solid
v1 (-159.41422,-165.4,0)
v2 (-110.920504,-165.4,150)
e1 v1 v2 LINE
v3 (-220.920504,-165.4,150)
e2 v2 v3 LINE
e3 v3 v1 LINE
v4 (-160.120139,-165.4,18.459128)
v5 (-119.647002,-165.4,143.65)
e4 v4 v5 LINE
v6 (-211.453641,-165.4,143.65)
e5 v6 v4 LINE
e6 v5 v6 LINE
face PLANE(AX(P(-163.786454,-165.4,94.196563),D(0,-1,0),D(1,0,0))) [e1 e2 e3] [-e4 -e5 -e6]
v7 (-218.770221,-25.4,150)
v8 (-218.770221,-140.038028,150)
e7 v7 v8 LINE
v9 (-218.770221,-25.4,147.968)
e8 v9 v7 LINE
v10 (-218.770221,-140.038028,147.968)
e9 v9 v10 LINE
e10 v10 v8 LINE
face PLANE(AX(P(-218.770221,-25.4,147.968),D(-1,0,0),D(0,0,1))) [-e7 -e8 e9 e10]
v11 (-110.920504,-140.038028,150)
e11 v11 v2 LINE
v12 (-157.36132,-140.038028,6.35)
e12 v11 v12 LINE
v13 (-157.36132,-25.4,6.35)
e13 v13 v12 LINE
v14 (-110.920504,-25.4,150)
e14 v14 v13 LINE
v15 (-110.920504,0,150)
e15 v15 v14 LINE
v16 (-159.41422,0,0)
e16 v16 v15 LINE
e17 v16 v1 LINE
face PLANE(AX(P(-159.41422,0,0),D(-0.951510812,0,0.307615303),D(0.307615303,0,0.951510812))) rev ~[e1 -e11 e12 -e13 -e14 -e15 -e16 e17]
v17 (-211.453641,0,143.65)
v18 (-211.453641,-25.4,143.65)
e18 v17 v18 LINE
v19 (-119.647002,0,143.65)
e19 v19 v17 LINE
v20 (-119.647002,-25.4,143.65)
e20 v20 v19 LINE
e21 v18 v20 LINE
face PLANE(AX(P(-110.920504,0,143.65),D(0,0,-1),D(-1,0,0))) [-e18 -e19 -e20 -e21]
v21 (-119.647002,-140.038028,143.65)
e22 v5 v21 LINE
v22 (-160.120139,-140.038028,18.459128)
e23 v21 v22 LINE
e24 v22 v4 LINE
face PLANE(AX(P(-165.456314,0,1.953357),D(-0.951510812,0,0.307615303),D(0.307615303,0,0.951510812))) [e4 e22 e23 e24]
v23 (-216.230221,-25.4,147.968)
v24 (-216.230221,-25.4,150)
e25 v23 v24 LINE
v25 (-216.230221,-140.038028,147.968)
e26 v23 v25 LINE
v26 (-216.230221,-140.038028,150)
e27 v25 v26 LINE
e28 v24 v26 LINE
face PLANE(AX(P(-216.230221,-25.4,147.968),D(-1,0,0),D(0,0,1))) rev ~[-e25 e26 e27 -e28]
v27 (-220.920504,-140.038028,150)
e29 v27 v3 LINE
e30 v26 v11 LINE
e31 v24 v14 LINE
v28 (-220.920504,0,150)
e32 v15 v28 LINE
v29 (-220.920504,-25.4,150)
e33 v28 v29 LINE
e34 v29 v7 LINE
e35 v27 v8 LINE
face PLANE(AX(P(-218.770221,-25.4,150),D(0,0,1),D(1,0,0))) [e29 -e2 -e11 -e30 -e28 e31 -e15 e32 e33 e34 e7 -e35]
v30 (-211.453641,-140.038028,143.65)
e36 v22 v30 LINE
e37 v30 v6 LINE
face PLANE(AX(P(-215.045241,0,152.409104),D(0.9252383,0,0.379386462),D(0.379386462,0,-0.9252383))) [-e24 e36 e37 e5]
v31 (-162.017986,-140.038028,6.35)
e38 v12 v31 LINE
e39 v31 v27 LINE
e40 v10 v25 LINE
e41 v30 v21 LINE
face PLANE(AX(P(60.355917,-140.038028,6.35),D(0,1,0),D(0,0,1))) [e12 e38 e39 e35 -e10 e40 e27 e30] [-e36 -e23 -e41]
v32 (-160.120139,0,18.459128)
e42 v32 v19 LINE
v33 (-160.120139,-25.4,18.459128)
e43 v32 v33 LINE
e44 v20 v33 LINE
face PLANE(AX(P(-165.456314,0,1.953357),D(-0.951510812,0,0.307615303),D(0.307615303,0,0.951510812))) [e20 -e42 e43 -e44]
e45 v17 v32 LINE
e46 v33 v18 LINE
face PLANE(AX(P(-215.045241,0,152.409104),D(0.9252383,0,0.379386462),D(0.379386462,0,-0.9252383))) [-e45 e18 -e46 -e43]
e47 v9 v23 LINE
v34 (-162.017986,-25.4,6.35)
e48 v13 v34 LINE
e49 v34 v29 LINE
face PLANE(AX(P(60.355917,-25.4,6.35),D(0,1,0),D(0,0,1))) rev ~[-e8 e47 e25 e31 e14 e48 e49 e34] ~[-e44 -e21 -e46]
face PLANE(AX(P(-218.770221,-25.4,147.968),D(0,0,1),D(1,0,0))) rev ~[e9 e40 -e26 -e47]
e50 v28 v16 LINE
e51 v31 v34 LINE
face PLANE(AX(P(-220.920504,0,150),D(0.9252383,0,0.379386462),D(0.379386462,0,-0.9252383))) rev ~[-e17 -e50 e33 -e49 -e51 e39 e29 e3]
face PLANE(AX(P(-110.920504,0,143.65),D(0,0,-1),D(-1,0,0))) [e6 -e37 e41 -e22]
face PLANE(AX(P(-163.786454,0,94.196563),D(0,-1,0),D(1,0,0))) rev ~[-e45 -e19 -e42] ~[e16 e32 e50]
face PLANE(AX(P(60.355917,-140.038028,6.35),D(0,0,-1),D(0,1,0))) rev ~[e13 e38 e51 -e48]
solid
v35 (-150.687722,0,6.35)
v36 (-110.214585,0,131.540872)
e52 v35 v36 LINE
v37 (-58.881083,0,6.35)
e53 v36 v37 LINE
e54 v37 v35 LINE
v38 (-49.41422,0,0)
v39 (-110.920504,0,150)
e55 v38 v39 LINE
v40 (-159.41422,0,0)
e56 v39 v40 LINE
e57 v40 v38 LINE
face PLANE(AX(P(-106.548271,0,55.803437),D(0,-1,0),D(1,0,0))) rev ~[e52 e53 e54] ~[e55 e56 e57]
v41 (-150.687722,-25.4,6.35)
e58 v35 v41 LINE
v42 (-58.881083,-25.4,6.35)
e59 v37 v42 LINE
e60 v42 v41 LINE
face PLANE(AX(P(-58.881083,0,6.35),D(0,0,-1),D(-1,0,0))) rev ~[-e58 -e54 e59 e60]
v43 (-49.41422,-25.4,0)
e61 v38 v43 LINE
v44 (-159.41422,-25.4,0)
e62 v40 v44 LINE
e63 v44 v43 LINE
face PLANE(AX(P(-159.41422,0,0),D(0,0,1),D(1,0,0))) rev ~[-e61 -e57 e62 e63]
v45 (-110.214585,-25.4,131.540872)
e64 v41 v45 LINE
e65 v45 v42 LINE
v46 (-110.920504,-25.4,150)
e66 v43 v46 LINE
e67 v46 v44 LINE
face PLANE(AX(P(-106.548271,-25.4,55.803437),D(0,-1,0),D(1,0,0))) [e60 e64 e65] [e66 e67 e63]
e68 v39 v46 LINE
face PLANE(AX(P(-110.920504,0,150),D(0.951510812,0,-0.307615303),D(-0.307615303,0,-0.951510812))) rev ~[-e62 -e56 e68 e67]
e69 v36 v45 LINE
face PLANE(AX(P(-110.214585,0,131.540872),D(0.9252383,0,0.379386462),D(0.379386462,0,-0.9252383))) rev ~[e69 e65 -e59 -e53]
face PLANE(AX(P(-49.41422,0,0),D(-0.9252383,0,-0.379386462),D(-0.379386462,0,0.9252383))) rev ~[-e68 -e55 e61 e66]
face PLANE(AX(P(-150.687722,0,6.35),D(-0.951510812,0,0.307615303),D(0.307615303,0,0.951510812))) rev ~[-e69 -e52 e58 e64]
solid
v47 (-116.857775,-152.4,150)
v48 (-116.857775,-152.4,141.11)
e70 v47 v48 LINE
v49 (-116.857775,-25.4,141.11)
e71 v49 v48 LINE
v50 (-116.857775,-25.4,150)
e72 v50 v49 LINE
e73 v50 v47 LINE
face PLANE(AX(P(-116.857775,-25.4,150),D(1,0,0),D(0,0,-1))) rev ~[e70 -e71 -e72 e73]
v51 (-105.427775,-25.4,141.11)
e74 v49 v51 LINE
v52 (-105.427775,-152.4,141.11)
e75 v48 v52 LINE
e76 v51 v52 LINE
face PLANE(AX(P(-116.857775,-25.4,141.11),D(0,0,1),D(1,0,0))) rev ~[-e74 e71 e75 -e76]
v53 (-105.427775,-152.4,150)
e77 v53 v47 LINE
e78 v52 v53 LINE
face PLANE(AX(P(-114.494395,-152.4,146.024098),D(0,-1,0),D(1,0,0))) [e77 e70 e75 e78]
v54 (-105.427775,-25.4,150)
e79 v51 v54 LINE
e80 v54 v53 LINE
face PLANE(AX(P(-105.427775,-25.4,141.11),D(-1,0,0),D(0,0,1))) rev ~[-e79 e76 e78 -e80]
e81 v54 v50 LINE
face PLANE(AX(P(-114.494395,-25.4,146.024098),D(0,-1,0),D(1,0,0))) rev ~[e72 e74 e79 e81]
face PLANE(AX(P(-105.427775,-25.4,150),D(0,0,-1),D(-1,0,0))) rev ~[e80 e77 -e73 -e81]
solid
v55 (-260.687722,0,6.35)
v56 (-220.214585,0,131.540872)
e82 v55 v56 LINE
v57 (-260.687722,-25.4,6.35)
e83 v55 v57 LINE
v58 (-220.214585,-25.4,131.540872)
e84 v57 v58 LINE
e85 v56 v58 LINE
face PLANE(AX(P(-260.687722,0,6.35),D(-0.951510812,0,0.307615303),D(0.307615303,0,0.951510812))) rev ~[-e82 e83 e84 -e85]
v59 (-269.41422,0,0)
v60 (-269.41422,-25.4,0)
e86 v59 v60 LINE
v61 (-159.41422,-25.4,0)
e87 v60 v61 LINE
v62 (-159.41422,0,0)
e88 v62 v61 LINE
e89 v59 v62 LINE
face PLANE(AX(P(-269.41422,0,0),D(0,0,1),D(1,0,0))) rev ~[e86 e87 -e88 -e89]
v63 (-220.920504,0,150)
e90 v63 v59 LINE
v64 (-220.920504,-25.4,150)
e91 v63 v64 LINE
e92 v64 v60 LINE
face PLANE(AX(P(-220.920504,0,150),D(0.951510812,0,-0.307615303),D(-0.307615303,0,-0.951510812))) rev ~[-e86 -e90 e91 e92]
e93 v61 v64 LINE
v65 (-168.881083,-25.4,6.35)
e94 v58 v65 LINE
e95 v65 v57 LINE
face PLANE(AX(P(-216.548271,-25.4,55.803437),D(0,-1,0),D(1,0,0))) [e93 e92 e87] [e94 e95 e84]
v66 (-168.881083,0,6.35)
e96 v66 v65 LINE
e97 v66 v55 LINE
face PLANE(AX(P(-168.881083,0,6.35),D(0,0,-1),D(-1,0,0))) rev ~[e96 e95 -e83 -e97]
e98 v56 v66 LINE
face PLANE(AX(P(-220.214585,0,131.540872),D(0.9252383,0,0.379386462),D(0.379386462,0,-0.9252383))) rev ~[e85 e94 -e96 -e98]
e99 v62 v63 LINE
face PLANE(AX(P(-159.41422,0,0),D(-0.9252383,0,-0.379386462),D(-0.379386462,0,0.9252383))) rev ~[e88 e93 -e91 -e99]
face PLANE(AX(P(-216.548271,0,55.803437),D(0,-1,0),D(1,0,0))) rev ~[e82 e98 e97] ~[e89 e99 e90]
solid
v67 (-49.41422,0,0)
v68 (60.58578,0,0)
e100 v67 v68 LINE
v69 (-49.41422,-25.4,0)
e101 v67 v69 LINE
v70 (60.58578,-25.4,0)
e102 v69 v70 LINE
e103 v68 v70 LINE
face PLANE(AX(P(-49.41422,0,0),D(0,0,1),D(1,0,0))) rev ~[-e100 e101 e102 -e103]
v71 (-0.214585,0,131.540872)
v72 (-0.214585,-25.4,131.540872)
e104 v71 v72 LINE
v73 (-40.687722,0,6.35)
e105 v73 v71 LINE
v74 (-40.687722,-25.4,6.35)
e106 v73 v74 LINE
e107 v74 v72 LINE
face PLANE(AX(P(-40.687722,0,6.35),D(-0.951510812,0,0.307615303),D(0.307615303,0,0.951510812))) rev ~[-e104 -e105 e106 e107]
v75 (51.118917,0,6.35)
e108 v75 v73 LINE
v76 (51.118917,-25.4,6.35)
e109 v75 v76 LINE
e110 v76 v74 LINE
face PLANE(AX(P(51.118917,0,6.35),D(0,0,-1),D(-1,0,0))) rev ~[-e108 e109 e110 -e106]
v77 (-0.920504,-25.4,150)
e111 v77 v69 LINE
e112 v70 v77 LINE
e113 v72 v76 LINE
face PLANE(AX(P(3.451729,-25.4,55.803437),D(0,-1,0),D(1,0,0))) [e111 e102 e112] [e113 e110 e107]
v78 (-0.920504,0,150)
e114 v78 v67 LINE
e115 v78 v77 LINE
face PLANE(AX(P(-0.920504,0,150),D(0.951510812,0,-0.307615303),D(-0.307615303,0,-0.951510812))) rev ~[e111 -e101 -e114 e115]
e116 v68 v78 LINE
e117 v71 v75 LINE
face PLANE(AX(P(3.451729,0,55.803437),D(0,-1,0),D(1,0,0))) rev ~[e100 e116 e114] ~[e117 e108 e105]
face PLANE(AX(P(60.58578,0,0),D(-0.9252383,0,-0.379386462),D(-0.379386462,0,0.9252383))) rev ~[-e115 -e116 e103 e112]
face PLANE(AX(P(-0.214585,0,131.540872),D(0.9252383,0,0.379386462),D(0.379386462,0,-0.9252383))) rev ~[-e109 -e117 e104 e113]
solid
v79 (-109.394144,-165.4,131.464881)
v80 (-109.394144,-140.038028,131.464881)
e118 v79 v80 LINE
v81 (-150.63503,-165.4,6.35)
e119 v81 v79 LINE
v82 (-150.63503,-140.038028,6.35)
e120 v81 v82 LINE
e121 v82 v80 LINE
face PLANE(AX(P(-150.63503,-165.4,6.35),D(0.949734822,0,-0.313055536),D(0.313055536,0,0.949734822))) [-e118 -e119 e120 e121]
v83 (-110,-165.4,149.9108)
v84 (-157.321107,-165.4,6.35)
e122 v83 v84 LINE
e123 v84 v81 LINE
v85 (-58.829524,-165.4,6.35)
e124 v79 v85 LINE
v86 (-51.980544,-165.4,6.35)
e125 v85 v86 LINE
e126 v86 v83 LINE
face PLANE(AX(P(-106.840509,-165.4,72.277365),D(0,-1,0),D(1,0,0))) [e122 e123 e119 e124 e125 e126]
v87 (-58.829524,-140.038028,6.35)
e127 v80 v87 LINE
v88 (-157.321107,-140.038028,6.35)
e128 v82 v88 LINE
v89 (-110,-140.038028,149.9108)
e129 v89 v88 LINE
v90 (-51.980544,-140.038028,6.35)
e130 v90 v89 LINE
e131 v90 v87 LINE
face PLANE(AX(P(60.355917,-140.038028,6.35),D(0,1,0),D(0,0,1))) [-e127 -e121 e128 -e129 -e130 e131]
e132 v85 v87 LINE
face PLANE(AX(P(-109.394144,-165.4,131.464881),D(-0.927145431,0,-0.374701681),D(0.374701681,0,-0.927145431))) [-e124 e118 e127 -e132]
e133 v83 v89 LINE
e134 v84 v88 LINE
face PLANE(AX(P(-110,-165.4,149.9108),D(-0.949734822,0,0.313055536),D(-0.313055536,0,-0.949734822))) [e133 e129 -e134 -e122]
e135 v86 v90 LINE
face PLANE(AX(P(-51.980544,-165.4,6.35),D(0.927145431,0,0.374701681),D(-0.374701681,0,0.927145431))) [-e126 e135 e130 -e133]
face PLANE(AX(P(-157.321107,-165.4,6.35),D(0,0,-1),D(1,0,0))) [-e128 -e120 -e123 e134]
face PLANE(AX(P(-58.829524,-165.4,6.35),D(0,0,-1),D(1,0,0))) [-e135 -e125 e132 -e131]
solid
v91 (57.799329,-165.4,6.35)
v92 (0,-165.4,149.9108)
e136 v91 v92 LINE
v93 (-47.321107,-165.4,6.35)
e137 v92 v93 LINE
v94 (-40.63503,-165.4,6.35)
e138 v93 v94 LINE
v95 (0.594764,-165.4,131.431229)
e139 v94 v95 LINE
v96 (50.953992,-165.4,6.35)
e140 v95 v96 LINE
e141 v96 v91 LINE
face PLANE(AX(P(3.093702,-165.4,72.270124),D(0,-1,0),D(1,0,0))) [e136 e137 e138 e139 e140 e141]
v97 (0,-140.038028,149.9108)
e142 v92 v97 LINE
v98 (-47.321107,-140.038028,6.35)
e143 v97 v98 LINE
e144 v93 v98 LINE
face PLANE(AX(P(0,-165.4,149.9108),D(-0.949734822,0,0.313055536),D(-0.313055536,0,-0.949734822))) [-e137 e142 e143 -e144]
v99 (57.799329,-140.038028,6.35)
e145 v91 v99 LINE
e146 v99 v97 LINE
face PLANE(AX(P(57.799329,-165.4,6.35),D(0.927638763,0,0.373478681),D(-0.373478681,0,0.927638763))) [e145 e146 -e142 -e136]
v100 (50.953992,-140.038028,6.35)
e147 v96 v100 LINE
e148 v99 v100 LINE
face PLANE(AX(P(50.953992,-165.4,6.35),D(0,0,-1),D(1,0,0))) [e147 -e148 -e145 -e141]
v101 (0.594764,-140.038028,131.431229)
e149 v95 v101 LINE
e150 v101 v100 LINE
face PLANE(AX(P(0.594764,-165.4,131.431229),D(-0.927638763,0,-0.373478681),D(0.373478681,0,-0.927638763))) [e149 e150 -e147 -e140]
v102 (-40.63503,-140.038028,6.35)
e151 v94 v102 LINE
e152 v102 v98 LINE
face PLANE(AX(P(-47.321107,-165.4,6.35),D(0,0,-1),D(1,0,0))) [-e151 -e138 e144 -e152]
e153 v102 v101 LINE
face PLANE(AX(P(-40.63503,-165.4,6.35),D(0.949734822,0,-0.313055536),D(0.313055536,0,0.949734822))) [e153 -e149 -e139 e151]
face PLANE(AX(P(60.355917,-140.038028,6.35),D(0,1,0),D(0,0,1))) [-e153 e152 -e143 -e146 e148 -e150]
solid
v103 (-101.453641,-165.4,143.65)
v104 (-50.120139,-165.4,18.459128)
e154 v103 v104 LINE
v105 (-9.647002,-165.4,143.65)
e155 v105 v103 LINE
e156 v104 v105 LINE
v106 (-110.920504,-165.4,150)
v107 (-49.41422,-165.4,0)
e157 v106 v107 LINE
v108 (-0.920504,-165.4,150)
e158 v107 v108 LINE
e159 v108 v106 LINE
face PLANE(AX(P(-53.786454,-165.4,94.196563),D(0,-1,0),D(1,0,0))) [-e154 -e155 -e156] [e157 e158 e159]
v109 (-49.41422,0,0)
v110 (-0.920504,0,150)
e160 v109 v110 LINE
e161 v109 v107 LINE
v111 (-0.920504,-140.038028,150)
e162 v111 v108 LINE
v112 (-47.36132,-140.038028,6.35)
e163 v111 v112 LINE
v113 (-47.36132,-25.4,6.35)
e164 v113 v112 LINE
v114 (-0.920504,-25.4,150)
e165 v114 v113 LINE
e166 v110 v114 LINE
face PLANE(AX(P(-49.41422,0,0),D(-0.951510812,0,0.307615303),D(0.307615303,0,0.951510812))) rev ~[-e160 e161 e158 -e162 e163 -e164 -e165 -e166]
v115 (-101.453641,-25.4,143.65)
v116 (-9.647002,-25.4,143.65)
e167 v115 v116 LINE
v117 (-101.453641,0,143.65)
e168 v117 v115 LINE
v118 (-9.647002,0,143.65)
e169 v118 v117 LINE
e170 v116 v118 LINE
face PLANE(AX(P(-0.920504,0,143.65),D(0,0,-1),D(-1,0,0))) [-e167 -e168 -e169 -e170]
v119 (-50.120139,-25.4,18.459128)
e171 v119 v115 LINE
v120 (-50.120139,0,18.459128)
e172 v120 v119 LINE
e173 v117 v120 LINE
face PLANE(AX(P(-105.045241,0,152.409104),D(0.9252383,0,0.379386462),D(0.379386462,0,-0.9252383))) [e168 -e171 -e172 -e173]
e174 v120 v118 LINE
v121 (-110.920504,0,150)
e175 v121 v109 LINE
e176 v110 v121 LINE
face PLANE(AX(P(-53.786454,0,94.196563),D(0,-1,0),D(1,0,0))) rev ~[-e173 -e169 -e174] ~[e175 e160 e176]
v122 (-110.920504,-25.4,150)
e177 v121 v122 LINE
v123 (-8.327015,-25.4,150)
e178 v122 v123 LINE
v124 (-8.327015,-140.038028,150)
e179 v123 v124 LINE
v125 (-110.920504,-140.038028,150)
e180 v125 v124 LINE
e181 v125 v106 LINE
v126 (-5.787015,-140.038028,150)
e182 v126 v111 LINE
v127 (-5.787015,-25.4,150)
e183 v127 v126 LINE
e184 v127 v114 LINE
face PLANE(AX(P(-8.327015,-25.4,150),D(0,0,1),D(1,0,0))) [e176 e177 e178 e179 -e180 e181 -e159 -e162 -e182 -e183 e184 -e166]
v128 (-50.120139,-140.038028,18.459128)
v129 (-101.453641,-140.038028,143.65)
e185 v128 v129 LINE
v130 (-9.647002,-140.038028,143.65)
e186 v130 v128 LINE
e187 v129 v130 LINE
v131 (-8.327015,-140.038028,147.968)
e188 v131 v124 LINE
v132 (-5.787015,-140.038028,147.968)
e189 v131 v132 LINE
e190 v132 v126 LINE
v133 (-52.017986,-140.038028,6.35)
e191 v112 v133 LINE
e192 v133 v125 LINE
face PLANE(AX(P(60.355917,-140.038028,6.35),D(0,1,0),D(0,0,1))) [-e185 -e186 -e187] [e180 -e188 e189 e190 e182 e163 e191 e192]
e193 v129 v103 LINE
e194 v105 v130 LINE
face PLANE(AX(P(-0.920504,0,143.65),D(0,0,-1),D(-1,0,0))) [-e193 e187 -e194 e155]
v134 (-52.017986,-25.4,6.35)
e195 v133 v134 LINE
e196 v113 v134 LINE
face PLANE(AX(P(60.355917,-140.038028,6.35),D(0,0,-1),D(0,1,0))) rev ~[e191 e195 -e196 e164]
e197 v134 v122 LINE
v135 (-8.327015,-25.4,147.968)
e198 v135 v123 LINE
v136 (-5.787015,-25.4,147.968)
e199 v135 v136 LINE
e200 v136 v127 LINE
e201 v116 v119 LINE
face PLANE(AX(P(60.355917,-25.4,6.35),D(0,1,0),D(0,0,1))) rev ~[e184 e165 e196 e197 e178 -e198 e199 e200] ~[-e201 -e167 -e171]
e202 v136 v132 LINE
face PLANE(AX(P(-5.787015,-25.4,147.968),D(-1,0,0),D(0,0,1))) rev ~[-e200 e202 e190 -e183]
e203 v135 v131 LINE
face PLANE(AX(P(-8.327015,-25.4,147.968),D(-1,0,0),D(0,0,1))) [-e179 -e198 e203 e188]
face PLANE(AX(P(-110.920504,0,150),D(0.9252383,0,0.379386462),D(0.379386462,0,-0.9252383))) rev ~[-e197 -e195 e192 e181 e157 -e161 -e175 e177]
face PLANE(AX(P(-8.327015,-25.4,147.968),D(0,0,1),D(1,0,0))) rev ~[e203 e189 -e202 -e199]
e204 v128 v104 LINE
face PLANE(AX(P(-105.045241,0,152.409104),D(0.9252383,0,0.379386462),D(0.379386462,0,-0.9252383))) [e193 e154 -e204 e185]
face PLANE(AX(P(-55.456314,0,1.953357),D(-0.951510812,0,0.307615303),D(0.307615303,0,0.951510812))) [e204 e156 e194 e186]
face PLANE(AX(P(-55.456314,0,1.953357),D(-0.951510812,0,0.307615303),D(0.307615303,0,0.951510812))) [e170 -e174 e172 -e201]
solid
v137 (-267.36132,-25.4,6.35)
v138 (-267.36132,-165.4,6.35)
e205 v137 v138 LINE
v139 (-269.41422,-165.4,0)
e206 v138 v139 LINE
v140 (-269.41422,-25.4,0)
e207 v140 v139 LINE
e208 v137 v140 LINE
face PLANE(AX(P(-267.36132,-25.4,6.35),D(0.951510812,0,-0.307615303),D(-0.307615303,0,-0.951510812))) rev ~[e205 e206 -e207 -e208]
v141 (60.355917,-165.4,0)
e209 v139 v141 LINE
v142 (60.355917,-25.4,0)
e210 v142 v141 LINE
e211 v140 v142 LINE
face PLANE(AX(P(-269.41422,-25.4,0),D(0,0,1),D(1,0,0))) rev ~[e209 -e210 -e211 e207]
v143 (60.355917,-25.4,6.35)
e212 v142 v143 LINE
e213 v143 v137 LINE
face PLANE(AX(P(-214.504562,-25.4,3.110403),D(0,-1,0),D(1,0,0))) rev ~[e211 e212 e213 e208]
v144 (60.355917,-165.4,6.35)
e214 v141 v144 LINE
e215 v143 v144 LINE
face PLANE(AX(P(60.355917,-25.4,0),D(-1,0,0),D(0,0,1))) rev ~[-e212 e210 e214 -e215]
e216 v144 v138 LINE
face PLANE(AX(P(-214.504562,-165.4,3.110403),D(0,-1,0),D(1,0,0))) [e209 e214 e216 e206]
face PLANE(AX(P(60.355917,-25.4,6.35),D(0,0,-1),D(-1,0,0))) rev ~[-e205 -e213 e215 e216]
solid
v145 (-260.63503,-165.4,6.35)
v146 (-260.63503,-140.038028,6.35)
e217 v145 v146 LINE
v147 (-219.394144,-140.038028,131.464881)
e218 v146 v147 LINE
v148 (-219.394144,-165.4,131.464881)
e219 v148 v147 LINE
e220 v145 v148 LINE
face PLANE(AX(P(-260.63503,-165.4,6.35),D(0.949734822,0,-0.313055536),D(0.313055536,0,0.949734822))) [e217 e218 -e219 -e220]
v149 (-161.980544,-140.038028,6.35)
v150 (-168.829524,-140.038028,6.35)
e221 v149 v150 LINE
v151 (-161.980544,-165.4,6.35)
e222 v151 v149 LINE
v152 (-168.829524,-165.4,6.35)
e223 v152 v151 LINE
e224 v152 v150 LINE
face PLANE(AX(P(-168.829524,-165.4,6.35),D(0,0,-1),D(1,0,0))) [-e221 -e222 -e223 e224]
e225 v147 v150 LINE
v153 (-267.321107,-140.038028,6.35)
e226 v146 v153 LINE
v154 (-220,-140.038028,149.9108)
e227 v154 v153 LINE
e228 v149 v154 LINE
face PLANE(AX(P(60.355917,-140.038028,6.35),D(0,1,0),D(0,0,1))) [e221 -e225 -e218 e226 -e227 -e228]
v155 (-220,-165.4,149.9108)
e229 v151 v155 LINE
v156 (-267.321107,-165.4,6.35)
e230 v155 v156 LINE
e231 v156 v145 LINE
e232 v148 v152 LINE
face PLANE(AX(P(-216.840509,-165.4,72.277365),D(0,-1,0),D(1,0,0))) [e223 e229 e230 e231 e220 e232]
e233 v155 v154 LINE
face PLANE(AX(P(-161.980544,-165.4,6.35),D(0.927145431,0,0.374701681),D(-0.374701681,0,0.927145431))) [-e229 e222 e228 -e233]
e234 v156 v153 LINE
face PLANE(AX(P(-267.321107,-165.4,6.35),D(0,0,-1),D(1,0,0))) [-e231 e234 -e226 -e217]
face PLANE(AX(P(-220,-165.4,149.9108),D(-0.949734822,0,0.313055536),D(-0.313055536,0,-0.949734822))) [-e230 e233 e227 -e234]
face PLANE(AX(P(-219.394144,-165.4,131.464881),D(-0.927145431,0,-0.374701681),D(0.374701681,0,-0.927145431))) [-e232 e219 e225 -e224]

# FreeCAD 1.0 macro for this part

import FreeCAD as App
import Part
import Sketcher
Q = App.Units.Quantity


def faces_at(feature, points):
    """Names of the faces that lie closest to the given points."""
    faces = feature.Shape.Faces
    near = lambda p: min(range(len(faces)), key=lambda i: faces[i].distToShape(Part.Vertex(*p))[0])
    return sorted({f"Face{near(p) + 1}" for p in points})

doc = App.newDocument("Part")
params = doc.addObject("Spreadsheet::Sheet", "Params")
for row, (alias, value) in enumerate([
    ("pad1_length", "1 in"),
    ("pad2_length", "1 in"),
    ("pad3_length", "1 in"),
    ("sketch4_height", "0.25 in"),
    ("pad4_length", "140 mm"),
    ("pad5_length", "1 in"),
    ("pad6_length", "1 in"),
    ("pad7_length", "1 in"),
    ("pad8_length", "165.4 mm"),
    ("thickness_wall", "0.25 in"),
    ("pad9_length", "165.4 mm"),
    ("thickness2_wall", "0.25 in"),
    ("pad10_length", "333 mm"),
    ("sketch11_width", "0.1 in"),
    ("sketch11_height", "0.08 in"),
    ("pad11_length", "5 in"),
    ("sketch12_width", "0.1 in"),
    ("sketch12_height", "0.08 in"),
    ("pad12_length", "5 in"),
    ("sketch13_width", "0.45 in"),
    ("sketch13_height", "0.35 in"),
    ("pad13_length", "5 in"),
], start=1):
    params.set(f"A{row}", alias)
    params.set(f"B{row}", "=" + value)
    params.setAlias(f"B{row}", alias)

body = doc.addObject("PartDesign::Body", "Body")

sketch1 = body.newObject("Sketcher::SketchObject", "Sketch")
sketch1.AttachmentSupport = (doc.getObject("XZ_Plane"), [""])
sketch1.MapMode = "FlatFace"
sketch1.addGeometry([
    Part.LineSegment(App.Vector(-221, 150, 0), App.Vector(-269, 0, 0)),
    Part.LineSegment(App.Vector(-269, 0, 0), App.Vector(-159, 0, 0)),
    Part.LineSegment(App.Vector(-159, 0, 0), App.Vector(-221, 150, 0)),
    Part.LineSegment(App.Vector(-169, 6, 0), App.Vector(-261, 6, 0)),
    Part.LineSegment(App.Vector(-261, 6, 0), App.Vector(-220, 132, 0)),
    Part.LineSegment(App.Vector(-220, 132, 0), App.Vector(-169, 6, 0)),
], False)
sketch1.addConstraint([
    Sketcher.Constraint("Coincident", 0, 2, 1, 1),
    Sketcher.Constraint("Coincident", 1, 2, 2, 1),
    Sketcher.Constraint("Coincident", 2, 2, 0, 1),
    Sketcher.Constraint("Coincident", 3, 2, 4, 1),
    Sketcher.Constraint("Coincident", 4, 2, 5, 1),
    Sketcher.Constraint("Coincident", 5, 2, 3, 1),
    Sketcher.Constraint("Horizontal", 1),
    Sketcher.Constraint("Horizontal", 3),
    Sketcher.Constraint("PointOnObject", 0, 2, -1),
    Sketcher.Constraint("Parallel", 0, 4),
    Sketcher.Constraint("Parallel", 2, 5),
    Sketcher.Constraint("DistanceY", -1, 1, 3, 2, Q("0.25 in")),
    Sketcher.Constraint("DistanceX", 1, 1, 1, 2, 110.0),
    Sketcher.Constraint("DistanceX", 3, 2, 3, 1, 91.806639),
    Sketcher.Constraint("DistanceY", -1, 1, 2, 2, 150.0),
    Sketcher.Constraint("DistanceX", 4, 2, 5, 2, 51.333502),
    Sketcher.Constraint("DistanceX", 0, 2, -1, 1, 269.41422),
    Sketcher.Constraint("DistanceX", 3, 2, 2, 2, 39.767218),
])
pad1 = body.newObject("PartDesign::Pad", "Pad")
pad1.Profile = sketch1
pad1.setExpression("Length", "Params.pad1_length")
body2 = doc.addObject("PartDesign::Body", "Body001")

sketch2 = body2.newObject("Sketcher::SketchObject", "Sketch001")
sketch2.AttachmentSupport = (doc.getObject("XZ_Plane001"), [""])
sketch2.MapMode = "FlatFace"
sketch2.addGeometry([
    Part.LineSegment(App.Vector(-111, 150, 0), App.Vector(-159, 0, 0)),
    Part.LineSegment(App.Vector(-159, 0, 0), App.Vector(-49, 0, 0)),
    Part.LineSegment(App.Vector(-49, 0, 0), App.Vector(-111, 150, 0)),
    Part.LineSegment(App.Vector(-110, 132, 0), App.Vector(-59, 6, 0)),
    Part.LineSegment(App.Vector(-59, 6, 0), App.Vector(-151, 6, 0)),
    Part.LineSegment(App.Vector(-151, 6, 0), App.Vector(-110, 132, 0)),
], False)
sketch2.addConstraint([
    Sketcher.Constraint("Coincident", 0, 2, 1, 1),
    Sketcher.Constraint("Coincident", 1, 2, 2, 1),
    Sketcher.Constraint("Coincident", 2, 2, 0, 1),
    Sketcher.Constraint("Coincident", 3, 2, 4, 1),
    Sketcher.Constraint("Coincident", 4, 2, 5, 1),
    Sketcher.Constraint("Coincident", 5, 2, 3, 1),
    Sketcher.Constraint("Horizontal", 1),
    Sketcher.Constraint("Horizontal", 4),
    Sketcher.Constraint("PointOnObject", 0, 2, -1),
    Sketcher.Constraint("Parallel", 2, 3),
    Sketcher.Constraint("Parallel", 0, 5),
    Sketcher.Constraint("DistanceY", -1, 1, 3, 2, Q("0.25 in")),
    Sketcher.Constraint("DistanceX", 1, 1, 1, 2, 110.0),
    Sketcher.Constraint("DistanceX", 4, 2, 4, 1, 91.806639),
    Sketcher.Constraint("DistanceY", -1, 1, 2, 2, 150.0),
    Sketcher.Constraint("DistanceX", 5, 2, 3, 2, 51.333502),
    Sketcher.Constraint("DistanceX", 0, 2, -1, 1, 159.41422),
    Sketcher.Constraint("DistanceX", 2, 2, 3, 2, 52.039421),
])
pad2 = body2.newObject("PartDesign::Pad", "Pad001")
pad2.Profile = sketch2
pad2.setExpression("Length", "Params.pad2_length")
body3 = doc.addObject("PartDesign::Body", "Body002")

sketch3 = body3.newObject("Sketcher::SketchObject", "Sketch002")
sketch3.AttachmentSupport = (doc.getObject("XZ_Plane002"), [""])
sketch3.MapMode = "FlatFace"
sketch3.addGeometry([
    Part.LineSegment(App.Vector(-1, 150, 0), App.Vector(-49, 0, 0)),
    Part.LineSegment(App.Vector(-49, 0, 0), App.Vector(61, 0, 0)),
    Part.LineSegment(App.Vector(61, 0, 0), App.Vector(-1, 150, 0)),
    Part.LineSegment(App.Vector(51, 6, 0), App.Vector(-41, 6, 0)),
    Part.LineSegment(App.Vector(-41, 6, 0), App.Vector(0, 132, 0)),
    Part.LineSegment(App.Vector(0, 132, 0), App.Vector(51, 6, 0)),
], False)
sketch3.addConstraint([
    Sketcher.Constraint("Coincident", 0, 2, 1, 1),
    Sketcher.Constraint("Coincident", 1, 2, 2, 1),
    Sketcher.Constraint("Coincident", 2, 2, 0, 1),
    Sketcher.Constraint("Coincident", 3, 2, 4, 1),
    Sketcher.Constraint("Coincident", 4, 2, 5, 1),
    Sketcher.Constraint("Coincident", 5, 2, 3, 1),
    Sketcher.Constraint("Horizontal", 1),
    Sketcher.Constraint("Horizontal", 3),
    Sketcher.Constraint("PointOnObject", 0, 2, -1),
    Sketcher.Constraint("Parallel", 0, 4),
    Sketcher.Constraint("Parallel", 2, 5),
    Sketcher.Constraint("DistanceY", -1, 1, 3, 2, Q("0.25 in")),
    Sketcher.Constraint("DistanceX", 1, 1, 1, 2, 110.0),
    Sketcher.Constraint("DistanceX", 3, 2, 3, 1, 91.806639),
    Sketcher.Constraint("DistanceY", -1, 1, 2, 2, 150.0),
    Sketcher.Constraint("DistanceX", 4, 2, 5, 2, 51.333502),
    Sketcher.Constraint("DistanceX", 0, 2, -1, 1, 49.41422),
    Sketcher.Constraint("DistanceX", 3, 2, 2, 2, 39.767218),
])
pad3 = body3.newObject("PartDesign::Pad", "Pad002")
pad3.Profile = sketch3
pad3.setExpression("Length", "Params.pad3_length")
body4 = doc.addObject("PartDesign::Body", "Body003")

sketch4 = body4.newObject("Sketcher::SketchObject", "Sketch003")
sketch4.AttachmentSupport = (doc.getObject("XZ_Plane003"), [""])
sketch4.MapMode = "FlatFace"
sketch4.AttachmentOffset = App.Placement(App.Vector(0, 0, 1 * 25.4), App.Rotation())
sketch4.addGeometry([
    Part.LineSegment(App.Vector(-267, 6, 0), App.Vector(-269, 0, 0)),
    Part.LineSegment(App.Vector(-269, 0, 0), App.Vector(60, 0, 0)),
    Part.LineSegment(App.Vector(60, 0, 0), App.Vector(60, 6, 0)),
    Part.LineSegment(App.Vector(60, 6, 0), App.Vector(-267, 6, 0)),
], False)
sketch4.addConstraint([
    Sketcher.Constraint("Coincident", 0, 2, 1, 1),
    Sketcher.Constraint("Coincident", 1, 2, 2, 1),
    Sketcher.Constraint("Coincident", 2, 2, 3, 1),
    Sketcher.Constraint("Coincident", 3, 2, 0, 1),
    Sketcher.Constraint("Horizontal", 1),
    Sketcher.Constraint("Vertical", 2),
    Sketcher.Constraint("Horizontal", 3),
    Sketcher.Constraint("PointOnObject", 0, 2, -1),
    Sketcher.Constraint("DistanceY", 2, 1, 2, 2, Q("0.25 in")),
    Sketcher.Constraint("DistanceX", 0, 2, 3, 2, 2.052901),
    Sketcher.Constraint("DistanceX", 1, 1, 1, 2, 329.770137),
    Sketcher.Constraint("DistanceX", 0, 2, -1, 1, 269.41422),
])
sketch4.setExpression("Constraints[8]", "Params.sketch4_height")
pad4 = body4.newObject("PartDesign::Pad", "Pad003")
pad4.Profile = sketch4
pad4.setExpression("Length", "Params.pad4_length")
body5 = doc.addObject("PartDesign::Body", "Body004")

sketch5 = body5.newObject("Sketcher::SketchObject", "Sketch004")
sketch5.AttachmentSupport = (doc.getObject("XZ_Plane004"), [""])
sketch5.MapMode = "FlatFace"
sketch5.AttachmentOffset = App.Placement(App.Vector(0, 0, 165.4), App.Rotation())
sketch5.addGeometry([
    Part.LineSegment(App.Vector(-220, 150, 0), App.Vector(-267, 6, 0)),
    Part.LineSegment(App.Vector(-267, 6, 0), App.Vector(-261, 6, 0)),
    Part.LineSegment(App.Vector(-261, 6, 0), App.Vector(-219, 131, 0)),
    Part.LineSegment(App.Vector(-219, 131, 0), App.Vector(-169, 6, 0)),
    Part.LineSegment(App.Vector(-169, 6, 0), App.Vector(-162, 6, 0)),
    Part.LineSegment(App.Vector(-162, 6, 0), App.Vector(-220, 150, 0)),
], False)
sketch5.addConstraint([
    Sketcher.Constraint("Coincident", 0, 2, 1, 1),
    Sketcher.Constraint("Coincident", 1, 2, 2, 1),
    Sketcher.Constraint("Coincident", 2, 2, 3, 1),
    Sketcher.Constraint("Coincident", 3, 2, 4, 1),
    Sketcher.Constraint("Coincident", 4, 2, 5, 1),
    Sketcher.Constraint("Coincident", 5, 2, 0, 1),
    Sketcher.Constraint("Horizontal", 1),
    Sketcher.Constraint("Horizontal", 4),
    Sketcher.Constraint("Parallel", 0, 2),
    Sketcher.Constraint("Parallel", 3, 5),
    Sketcher.Constraint("Horizontal", 1, 2, 3, 2),
    Sketcher.Constraint("DistanceY", -1, 1, 0, 2, Q("0.25 in")),
    Sketcher.Constraint("DistanceY", -1, 1, 5, 2, Q("5.902 in")),
    Sketcher.Constraint("DistanceX", 4, 1, 4, 2, 6.848979),
    Sketcher.Constraint("DistanceX", 5, 2, -1, 1, 220.0),
    Sketcher.Constraint("DistanceX", 2, 2, 4, 2, 57.413599),
    Sketcher.Constraint("Distance", 3, 134.946338),
    Sketcher.Constraint("DistanceX", 1, 1, 1, 2, 6.686077),
])
pad5 = body5.newObject("PartDesign::Pad", "Pad004")
pad5.Profile = sketch5
pad5.setExpression("Length", "Params.pad5_length")
pad5.Reversed = True
body6 = doc.addObject("PartDesign::Body", "Body005")

sketch6 = body6.newObject("Sketcher::SketchObject", "Sketch005")
sketch6.AttachmentSupport = (doc.getObject("XZ_Plane005"), [""])
sketch6.MapMode = "FlatFace"
sketch6.AttachmentOffset = App.Placement(App.Vector(0, 0, 165.4), App.Rotation())
sketch6.addGeometry([
    Part.LineSegment(App.Vector(-110, 150, 0), App.Vector(-157, 6, 0)),
    Part.LineSegment(App.Vector(-157, 6, 0), App.Vector(-151, 6, 0)),
    Part.LineSegment(App.Vector(-151, 6, 0), App.Vector(-109, 131, 0)),
    Part.LineSegment(App.Vector(-109, 131, 0), App.Vector(-59, 6, 0)),
    Part.LineSegment(App.Vector(-59, 6, 0), App.Vector(-52, 6, 0)),
    Part.LineSegment(App.Vector(-52, 6, 0), App.Vector(-110, 150, 0)),
], False)
sketch6.addConstraint([
    Sketcher.Constraint("Coincident", 0, 2, 1, 1),
    Sketcher.Constraint("Coincident", 1, 2, 2, 1),
    Sketcher.Constraint("Coincident", 2, 2, 3, 1),
    Sketcher.Constraint("Coincident", 3, 2, 4, 1),
    Sketcher.Constraint("Coincident", 4, 2, 5, 1),
    Sketcher.Constraint("Coincident", 5, 2, 0, 1),
    Sketcher.Constraint("Horizontal", 1),
    Sketcher.Constraint("Horizontal", 4),
    Sketcher.Constraint("Parallel", 0, 2),
    Sketcher.Constraint("Parallel", 3, 5),
    Sketcher.Constraint("Horizontal", 1, 2, 3, 2),
    Sketcher.Constraint("DistanceY", -1, 1, 0, 2, Q("0.25 in")),
    Sketcher.Constraint("DistanceY", -1, 1, 5, 2, Q("5.902 in")),
    Sketcher.Constraint("DistanceX", 4, 1, 4, 2, 6.848979),
    Sketcher.Constraint("DistanceX", 5, 2, -1, 1, 110.0),
    Sketcher.Constraint("DistanceX", 2, 2, 4, 2, 57.413599),
    Sketcher.Constraint("Distance", 3, 134.946338),
    Sketcher.Constraint("DistanceX", 1, 1, 1, 2, 6.686077),
])
pad6 = body6.newObject("PartDesign::Pad", "Pad005")
pad6.Profile = sketch6
pad6.setExpression("Length", "Params.pad6_length")
pad6.Reversed = True
body7 = doc.addObject("PartDesign::Body", "Body006")

sketch7 = body7.newObject("Sketcher::SketchObject", "Sketch006")
sketch7.AttachmentSupport = (doc.getObject("XZ_Plane006"), [""])
sketch7.MapMode = "FlatFace"
sketch7.AttachmentOffset = App.Placement(App.Vector(0, 0, 165.4), App.Rotation())
sketch7.addGeometry([
    Part.LineSegment(App.Vector(0, 150, 0), App.Vector(-47, 6, 0)),
    Part.LineSegment(App.Vector(-47, 6, 0), App.Vector(-41, 6, 0)),
    Part.LineSegment(App.Vector(-41, 6, 0), App.Vector(1, 131, 0)),
    Part.LineSegment(App.Vector(1, 131, 0), App.Vector(51, 6, 0)),
    Part.LineSegment(App.Vector(51, 6, 0), App.Vector(58, 6, 0)),
    Part.LineSegment(App.Vector(58, 6, 0), App.Vector(0, 150, 0)),
], False)
sketch7.addConstraint([
    Sketcher.Constraint("Coincident", 0, 2, 1, 1),
    Sketcher.Constraint("Coincident", 1, 2, 2, 1),
    Sketcher.Constraint("Coincident", 2, 2, 3, 1),
    Sketcher.Constraint("Coincident", 3, 2, 4, 1),
    Sketcher.Constraint("Coincident", 4, 2, 5, 1),
    Sketcher.Constraint("Coincident", 5, 2, 0, 1),
    Sketcher.Constraint("Horizontal", 1),
    Sketcher.Constraint("Horizontal", 4),
    Sketcher.Constraint("PointOnObject", 5, 2, -2),
    Sketcher.Constraint("Parallel", 0, 2),
    Sketcher.Constraint("Parallel", 3, 5),
    Sketcher.Constraint("Horizontal", 1, 2, 3, 2),
    Sketcher.Constraint("DistanceY", -1, 1, 0, 2, Q("0.25 in")),
    Sketcher.Constraint("DistanceY", -1, 1, 5, 2, Q("5.902 in")),
    Sketcher.Constraint("DistanceX", 0, 2, 4, 2, Q("4.1385998 in")),
    Sketcher.Constraint("DistanceX", 0, 2, 3, 2, 98.275099),
    Sketcher.Constraint("Distance", 5, 154.75938),
    Sketcher.Constraint("DistanceX", 1, 1, 1, 2, 6.686077),
])
pad7 = body7.newObject("PartDesign::Pad", "Pad006")
pad7.Profile = sketch7
pad7.setExpression("Length", "Params.pad7_length")
pad7.Reversed = True
body8 = doc.addObject("PartDesign::Body", "Body007")

sketch8 = body8.newObject("Sketcher::SketchObject", "Sketch007")
sketch8.AttachmentSupport = (doc.getObject("XZ_Plane007"), [""])
sketch8.MapMode = "FlatFace"
sketch8.addGeometry([
    Part.LineSegment(App.Vector(-111, 150, 0), App.Vector(-221, 150, 0)),
    Part.LineSegment(App.Vector(-221, 150, 0), App.Vector(-159, 0, 0)),
    Part.LineSegment(App.Vector(-159, 0, 0), App.Vector(-111, 150, 0)),
], False)
sketch8.addConstraint([
    Sketcher.Constraint("Coincident", 0, 2, 1, 1),
    Sketcher.Constraint("Coincident", 1, 2, 2, 1),
    Sketcher.Constraint("Coincident", 2, 2, 0, 1),
    Sketcher.Constraint("Horizontal", 0),
    Sketcher.Constraint("PointOnObject", 1, 2, -1),
    Sketcher.Constraint("DistanceX", 0, 2, 0, 1, 110.0),
    Sketcher.Constraint("DistanceY", -1, 1, 0, 2, 150.0),
    Sketcher.Constraint("Distance", 2, 157.644031),
    Sketcher.Constraint("DistanceX", 1, 2, -1, 1, 159.41422),
])
pad8 = body8.newObject("PartDesign::Pad", "Pad007")
pad8.Profile = sketch8
pad8.setExpression("Length", "Params.pad8_length")
doc.recompute()

thickness = body8.newObject("PartDesign::Thickness", "Thickness")
thickness.Base = (pad8, faces_at(pad8, [(-165.921, -165.4, 75), (-165.921, 0, 75)]))
thickness.setExpression("Value", "Params.thickness_wall")
thickness.Reversed = True
thickness.Join = "Arc"
body9 = doc.addObject("PartDesign::Body", "Body008")

sketch9 = body9.newObject("Sketcher::SketchObject", "Sketch008")
sketch9.AttachmentSupport = (doc.getObject("XZ_Plane008"), [""])
sketch9.MapMode = "FlatFace"
sketch9.addGeometry([
    Part.LineSegment(App.Vector(-1, 150, 0), App.Vector(-111, 150, 0)),
    Part.LineSegment(App.Vector(-111, 150, 0), App.Vector(-49, 0, 0)),
    Part.LineSegment(App.Vector(-49, 0, 0), App.Vector(-1, 150, 0)),
], False)
sketch9.addConstraint([
    Sketcher.Constraint("Coincident", 0, 2, 1, 1),
    Sketcher.Constraint("Coincident", 1, 2, 2, 1),
    Sketcher.Constraint("Coincident", 2, 2, 0, 1),
    Sketcher.Constraint("Horizontal", 0),
    Sketcher.Constraint("PointOnObject", 1, 2, -1),
    Sketcher.Constraint("DistanceX", 0, 2, 0, 1, 110.0),
    Sketcher.Constraint("DistanceY", -1, 1, 0, 2, 150.0),
    Sketcher.Constraint("Distance", 2, 157.644031),
    Sketcher.Constraint("DistanceX", 1, 2, -1, 1, 49.41422),
])
pad9 = body9.newObject("PartDesign::Pad", "Pad008")
pad9.Profile = sketch9
pad9.setExpression("Length", "Params.pad9_length")
doc.recompute()

thickness2 = body9.newObject("PartDesign::Thickness", "Thickness001")
thickness2.Base = (pad9, faces_at(pad9, [(-55.921, -165.4, 75), (-55.921, 0, 75)]))
thickness2.setExpression("Value", "Params.thickness2_wall")
thickness2.Reversed = True
thickness2.Join = "Arc"
body10 = doc.addObject("PartDesign::Body", "Body009")

sketch10 = body10.newObject("Sketcher::SketchObject", "Sketch009")
sketch10.AttachmentSupport = (doc.getObject("YZ_Plane009"), [""])
sketch10.MapMode = "FlatFace"
sketch10.AttachmentOffset = App.Placement(App.Vector(0, 0, 60.355917), App.Rotation())
sketch10.addGeometry([
    Part.LineSegment(App.Vector(-140, 152, 0), App.Vector(-140, 6, 0)),
    Part.LineSegment(App.Vector(-140, 6, 0), App.Vector(-25, 6, 0)),
    Part.LineSegment(App.Vector(-25, 6, 0), App.Vector(-25, 152, 0)),
    Part.LineSegment(App.Vector(-25, 152, 0), App.Vector(-140, 152, 0)),
], False)
sketch10.addConstraint([
    Sketcher.Constraint("Coincident", 0, 2, 1, 1),
    Sketcher.Constraint("Coincident", 1, 2, 2, 1),
    Sketcher.Constraint("Coincident", 2, 2, 3, 1),
    Sketcher.Constraint("Coincident", 3, 2, 0, 1),
    Sketcher.Constraint("Vertical", 0),
    Sketcher.Constraint("Horizontal", 1),
    Sketcher.Constraint("Vertical", 2),
    Sketcher.Constraint("Horizontal", 3),
    Sketcher.Constraint("DistanceX", 1, 2, -1, 1, Q("1 in")),
    Sketcher.Constraint("DistanceY", -1, 1, 0, 2, Q("0.25 in")),
    Sketcher.Constraint("DistanceX", 1, 1, 1, 2, 114.638028),
    Sketcher.Constraint("DistanceY", 0, 2, 0, 1, 145.77062),
])
pad10 = body10.newObject("PartDesign::Pad", "Pad009")
pad10.Profile = sketch10
pad10.setExpression("Length", "Params.pad10_length")
pad10.Reversed = True
doc.recompute()

body11 = doc.addObject("PartDesign::Body", "Body010")
body11.BaseFeature = body10
boolean = body5.newObject("PartDesign::Boolean", "Boolean")
boolean.Type = "Cut"
boolean.addObjects([body11])
doc.recompute()

body12 = doc.addObject("PartDesign::Body", "Body011")
body12.BaseFeature = body10
boolean2 = body6.newObject("PartDesign::Boolean", "Boolean001")
boolean2.Type = "Cut"
boolean2.addObjects([body12])
doc.recompute()

body13 = doc.addObject("PartDesign::Body", "Body012")
body13.BaseFeature = body10
boolean3 = body7.newObject("PartDesign::Boolean", "Boolean002")
boolean3.Type = "Cut"
boolean3.addObjects([body13])
doc.recompute()

body14 = doc.addObject("PartDesign::Body", "Body013")
body14.BaseFeature = body10
boolean4 = body8.newObject("PartDesign::Boolean", "Boolean003")
boolean4.Type = "Cut"
boolean4.addObjects([body14])
doc.recompute()

sketch11 = body8.newObject("Sketcher::SketchObject", "Sketch010")
sketch11.AttachmentSupport = (doc.getObject("XZ_Plane007"), [""])
sketch11.MapMode = "FlatFace"
sketch11.AttachmentOffset = App.Placement(App.Vector(0, 0, 1 * 25.4), App.Rotation())
sketch11.addGeometry([
    Part.LineSegment(App.Vector(-218.8, 150, 0), App.Vector(-218.8, 148, 0)),
    Part.LineSegment(App.Vector(-218.8, 148, 0), App.Vector(-216.2, 148, 0)),
    Part.LineSegment(App.Vector(-216.2, 148, 0), App.Vector(-216.2, 150, 0)),
    Part.LineSegment(App.Vector(-216.2, 150, 0), App.Vector(-218.8, 150, 0)),
], False)
sketch11.addConstraint([
    Sketcher.Constraint("Coincident", 0, 2, 1, 1),
    Sketcher.Constraint("Coincident", 1, 2, 2, 1),
    Sketcher.Constraint("Coincident", 2, 2, 3, 1),
    Sketcher.Constraint("Coincident", 3, 2, 0, 1),
    Sketcher.Constraint("Vertical", 0),
    Sketcher.Constraint("Horizontal", 1),
    Sketcher.Constraint("Vertical", 2),
    Sketcher.Constraint("Horizontal", 3),
    Sketcher.Constraint("DistanceX", 1, 1, 1, 2, Q("0.1 in")),
    Sketcher.Constraint("DistanceY", 0, 2, 0, 1, Q("0.08 in")),
    Sketcher.Constraint("DistanceY", -1, 1, 0, 2, 147.968),
    Sketcher.Constraint("DistanceX", 0, 2, -1, 1, 218.770221),
])
sketch11.setExpression("Constraints[8]", "Params.sketch11_width")
sketch11.setExpression("Constraints[9]", "Params.sketch11_height")
pad11 = body8.newObject("PartDesign::Pad", "Pad010")
pad11.Profile = sketch11
pad11.setExpression("Length", "Params.pad11_length")
doc.recompute()

boolean5 = body9.newObject("PartDesign::Boolean", "Boolean004")
boolean5.Type = "Cut"
boolean5.addObjects([body10])

sketch12 = body9.newObject("Sketcher::SketchObject", "Sketch011")
sketch12.AttachmentSupport = (doc.getObject("XZ_Plane008"), [""])
sketch12.MapMode = "FlatFace"
sketch12.AttachmentOffset = App.Placement(App.Vector(0, 0, 1 * 25.4), App.Rotation())
sketch12.addGeometry([
    Part.LineSegment(App.Vector(-8.3, 150, 0), App.Vector(-8.3, 148, 0)),
    Part.LineSegment(App.Vector(-8.3, 148, 0), App.Vector(-5.8, 148, 0)),
    Part.LineSegment(App.Vector(-5.8, 148, 0), App.Vector(-5.8, 150, 0)),
    Part.LineSegment(App.Vector(-5.8, 150, 0), App.Vector(-8.3, 150, 0)),
], False)
sketch12.addConstraint([
    Sketcher.Constraint("Coincident", 0, 2, 1, 1),
    Sketcher.Constraint("Coincident", 1, 2, 2, 1),
    Sketcher.Constraint("Coincident", 2, 2, 3, 1),
    Sketcher.Constraint("Coincident", 3, 2, 0, 1),
    Sketcher.Constraint("Vertical", 0),
    Sketcher.Constraint("Horizontal", 1),
    Sketcher.Constraint("Vertical", 2),
    Sketcher.Constraint("Horizontal", 3),
    Sketcher.Constraint("DistanceX", 1, 1, 1, 2, Q("0.1 in")),
    Sketcher.Constraint("DistanceY", 0, 2, 0, 1, Q("0.08 in")),
    Sketcher.Constraint("DistanceY", -1, 1, 0, 2, 147.968),
    Sketcher.Constraint("DistanceX", 0, 2, -1, 1, 8.327015),
])
sketch12.setExpression("Constraints[8]", "Params.sketch12_width")
sketch12.setExpression("Constraints[9]", "Params.sketch12_height")
pad12 = body9.newObject("PartDesign::Pad", "Pad011")
pad12.Profile = sketch12
pad12.setExpression("Length", "Params.pad12_length")
body15 = doc.addObject("PartDesign::Body", "Body014")

sketch13 = body15.newObject("Sketcher::SketchObject", "Sketch012")
sketch13.AttachmentSupport = (doc.getObject("XZ_Plane014"), [""])
sketch13.MapMode = "FlatFace"
sketch13.AttachmentOffset = App.Placement(App.Vector(0, 0, 1 * 25.4), App.Rotation())
sketch13.addGeometry([
    Part.LineSegment(App.Vector(-117, 150, 0), App.Vector(-117, 141, 0)),
    Part.LineSegment(App.Vector(-117, 141, 0), App.Vector(-105, 141, 0)),
    Part.LineSegment(App.Vector(-105, 141, 0), App.Vector(-105, 150, 0)),
    Part.LineSegment(App.Vector(-105, 150, 0), App.Vector(-117, 150, 0)),
], False)
sketch13.addConstraint([
    Sketcher.Constraint("Coincident", 0, 2, 1, 1),
    Sketcher.Constraint("Coincident", 1, 2, 2, 1),
    Sketcher.Constraint("Coincident", 2, 2, 3, 1),
    Sketcher.Constraint("Coincident", 3, 2, 0, 1),
    Sketcher.Constraint("Vertical", 0),
    Sketcher.Constraint("Horizontal", 1),
    Sketcher.Constraint("Vertical", 2),
    Sketcher.Constraint("Horizontal", 3),
    Sketcher.Constraint("DistanceX", 1, 1, 1, 2, Q("0.45 in")),
    Sketcher.Constraint("DistanceY", 0, 2, 0, 1, Q("0.35 in")),
    Sketcher.Constraint("DistanceY", -1, 1, 0, 2, 141.11),
    Sketcher.Constraint("DistanceX", 0, 2, -1, 1, 116.857775),
])
sketch13.setExpression("Constraints[8]", "Params.sketch13_width")
sketch13.setExpression("Constraints[9]", "Params.sketch13_height")
pad13 = body15.newObject("PartDesign::Pad", "Pad012")
pad13.Profile = sketch13
pad13.setExpression("Length", "Params.pad13_length")

doc.recompute()
